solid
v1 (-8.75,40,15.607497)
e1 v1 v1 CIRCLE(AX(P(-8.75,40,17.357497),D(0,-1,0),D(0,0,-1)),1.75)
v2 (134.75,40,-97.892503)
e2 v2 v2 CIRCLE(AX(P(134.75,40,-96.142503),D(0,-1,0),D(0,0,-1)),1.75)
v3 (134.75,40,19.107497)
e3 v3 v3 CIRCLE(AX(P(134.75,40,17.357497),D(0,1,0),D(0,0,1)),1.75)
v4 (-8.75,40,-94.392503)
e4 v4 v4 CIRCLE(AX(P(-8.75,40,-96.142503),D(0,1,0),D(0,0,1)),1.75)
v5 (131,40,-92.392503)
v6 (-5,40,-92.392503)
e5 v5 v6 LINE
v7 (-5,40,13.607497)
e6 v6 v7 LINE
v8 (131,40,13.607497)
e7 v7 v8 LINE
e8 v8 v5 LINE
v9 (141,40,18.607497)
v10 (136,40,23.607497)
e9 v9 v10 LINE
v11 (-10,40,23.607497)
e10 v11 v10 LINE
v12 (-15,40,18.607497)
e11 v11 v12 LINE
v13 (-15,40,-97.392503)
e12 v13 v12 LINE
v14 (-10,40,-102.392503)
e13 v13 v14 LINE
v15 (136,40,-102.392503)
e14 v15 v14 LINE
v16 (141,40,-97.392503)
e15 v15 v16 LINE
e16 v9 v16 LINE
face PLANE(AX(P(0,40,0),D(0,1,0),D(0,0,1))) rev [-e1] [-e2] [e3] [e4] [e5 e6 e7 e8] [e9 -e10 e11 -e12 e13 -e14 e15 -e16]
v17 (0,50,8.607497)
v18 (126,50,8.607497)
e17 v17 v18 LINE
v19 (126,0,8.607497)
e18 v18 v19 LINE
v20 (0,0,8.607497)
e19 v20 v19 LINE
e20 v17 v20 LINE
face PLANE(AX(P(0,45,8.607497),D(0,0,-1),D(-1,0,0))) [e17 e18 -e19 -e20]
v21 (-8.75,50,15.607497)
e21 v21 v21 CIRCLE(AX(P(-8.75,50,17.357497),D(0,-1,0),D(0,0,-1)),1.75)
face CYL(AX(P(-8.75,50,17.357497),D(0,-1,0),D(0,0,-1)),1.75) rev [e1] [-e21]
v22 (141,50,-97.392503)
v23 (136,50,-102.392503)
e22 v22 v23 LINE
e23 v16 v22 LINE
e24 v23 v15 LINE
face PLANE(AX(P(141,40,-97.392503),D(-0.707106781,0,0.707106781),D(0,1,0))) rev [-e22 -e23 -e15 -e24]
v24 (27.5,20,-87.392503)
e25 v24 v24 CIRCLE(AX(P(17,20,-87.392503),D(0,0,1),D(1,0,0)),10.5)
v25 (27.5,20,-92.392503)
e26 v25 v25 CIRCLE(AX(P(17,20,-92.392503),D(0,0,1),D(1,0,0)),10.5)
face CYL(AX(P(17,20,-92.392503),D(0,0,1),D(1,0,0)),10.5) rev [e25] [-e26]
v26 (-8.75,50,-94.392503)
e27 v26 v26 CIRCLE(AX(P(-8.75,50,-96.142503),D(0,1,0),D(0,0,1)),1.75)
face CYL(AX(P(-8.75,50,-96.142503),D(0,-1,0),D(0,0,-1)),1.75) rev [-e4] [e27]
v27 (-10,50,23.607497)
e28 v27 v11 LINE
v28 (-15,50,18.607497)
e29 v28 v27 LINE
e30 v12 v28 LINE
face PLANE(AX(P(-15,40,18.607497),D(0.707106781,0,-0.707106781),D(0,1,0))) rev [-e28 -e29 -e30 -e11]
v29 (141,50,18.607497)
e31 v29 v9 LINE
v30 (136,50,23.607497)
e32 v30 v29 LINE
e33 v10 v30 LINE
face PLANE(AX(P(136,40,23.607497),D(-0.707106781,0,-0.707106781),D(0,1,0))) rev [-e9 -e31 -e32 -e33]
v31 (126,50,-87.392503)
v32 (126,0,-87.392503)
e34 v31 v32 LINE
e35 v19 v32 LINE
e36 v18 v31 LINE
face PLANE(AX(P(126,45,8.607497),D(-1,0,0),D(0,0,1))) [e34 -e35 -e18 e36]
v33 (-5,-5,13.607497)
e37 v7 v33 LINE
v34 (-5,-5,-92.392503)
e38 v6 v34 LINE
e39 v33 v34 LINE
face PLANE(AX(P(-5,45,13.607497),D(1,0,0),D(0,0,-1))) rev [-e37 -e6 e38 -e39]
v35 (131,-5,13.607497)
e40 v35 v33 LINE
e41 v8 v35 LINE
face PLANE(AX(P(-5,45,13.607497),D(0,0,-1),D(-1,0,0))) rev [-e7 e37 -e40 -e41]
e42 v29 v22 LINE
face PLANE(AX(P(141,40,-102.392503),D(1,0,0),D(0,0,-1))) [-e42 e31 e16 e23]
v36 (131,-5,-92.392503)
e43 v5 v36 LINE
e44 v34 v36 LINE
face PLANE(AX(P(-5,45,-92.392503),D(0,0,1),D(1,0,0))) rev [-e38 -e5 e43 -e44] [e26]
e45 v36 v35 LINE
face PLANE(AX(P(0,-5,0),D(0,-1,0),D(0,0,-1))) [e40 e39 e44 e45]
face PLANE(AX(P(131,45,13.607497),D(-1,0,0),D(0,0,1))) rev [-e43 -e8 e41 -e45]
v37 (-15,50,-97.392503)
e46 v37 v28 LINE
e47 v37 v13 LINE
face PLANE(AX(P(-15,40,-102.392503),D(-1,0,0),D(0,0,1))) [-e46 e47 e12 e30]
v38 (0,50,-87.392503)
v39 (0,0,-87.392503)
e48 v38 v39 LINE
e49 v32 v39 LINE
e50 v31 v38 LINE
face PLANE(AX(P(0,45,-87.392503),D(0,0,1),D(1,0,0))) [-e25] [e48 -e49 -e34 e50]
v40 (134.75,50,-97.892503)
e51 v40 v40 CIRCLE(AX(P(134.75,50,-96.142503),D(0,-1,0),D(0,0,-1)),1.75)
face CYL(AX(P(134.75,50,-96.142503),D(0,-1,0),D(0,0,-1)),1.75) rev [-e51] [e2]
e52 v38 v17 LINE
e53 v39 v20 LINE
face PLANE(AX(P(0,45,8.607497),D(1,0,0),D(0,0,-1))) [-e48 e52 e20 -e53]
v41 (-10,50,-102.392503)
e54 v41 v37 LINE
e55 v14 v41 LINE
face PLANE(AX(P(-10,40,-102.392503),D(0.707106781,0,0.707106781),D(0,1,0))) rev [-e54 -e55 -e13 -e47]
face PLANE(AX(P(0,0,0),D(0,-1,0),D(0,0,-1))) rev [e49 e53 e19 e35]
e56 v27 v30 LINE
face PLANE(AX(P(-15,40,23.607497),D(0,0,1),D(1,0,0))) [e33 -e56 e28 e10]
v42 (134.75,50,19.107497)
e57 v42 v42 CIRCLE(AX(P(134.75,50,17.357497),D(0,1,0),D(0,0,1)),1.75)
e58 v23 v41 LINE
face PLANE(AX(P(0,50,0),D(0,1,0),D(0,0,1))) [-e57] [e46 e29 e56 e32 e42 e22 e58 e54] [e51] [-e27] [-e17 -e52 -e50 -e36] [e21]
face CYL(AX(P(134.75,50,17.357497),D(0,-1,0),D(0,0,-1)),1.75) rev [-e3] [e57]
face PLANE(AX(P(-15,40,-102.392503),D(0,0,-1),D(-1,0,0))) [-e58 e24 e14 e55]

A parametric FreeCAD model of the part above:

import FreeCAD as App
import Part
import Sketcher
Q = App.Units.Quantity


def edges_at(feature, points):
    """Names of the edges that pass closest to the given points."""
    edges = feature.Shape.Edges
    near = lambda p: min(range(len(edges)), key=lambda i: edges[i].distToShape(Part.Vertex(*p))[0])
    return sorted({f"Edge{near(p) + 1}" for p in points})

doc = App.newDocument("Part")
body = doc.addObject("PartDesign::Body", "Body")

# Sketch on XZ plane
sketch1 = body.newObject("Sketcher::SketchObject", "Sketch")
sketch1.AttachmentSupport = (doc.getObject("XZ_Plane"), [""])
sketch1.MapMode = "FlatFace"
sketch1.addGeometry(Part.LineSegment(App.Vector(-5, -92, 0), App.Vector(-5, 14, 0)), False)
sketch1.addGeometry(Part.LineSegment(App.Vector(-5, 14, 0), App.Vector(131, 14, 0)), False)
sketch1.addGeometry(Part.LineSegment(App.Vector(131, 14, 0), App.Vector(131, -92, 0)), False)
sketch1.addGeometry(Part.LineSegment(App.Vector(131, -92, 0), App.Vector(-5, -92, 0)), False)
sketch1.addGeometry(Part.LineSegment(App.Vector(126, 9, 0), App.Vector(0, 9, 0)), False)
sketch1.addGeometry(Part.LineSegment(App.Vector(0, 9, 0), App.Vector(0, -87, 0)), False)
sketch1.addGeometry(Part.LineSegment(App.Vector(0, -87, 0), App.Vector(126, -87, 0)), False)
sketch1.addGeometry(Part.LineSegment(App.Vector(126, -87, 0), App.Vector(126, 9, 0)), False)
sketch1.addConstraint(Sketcher.Constraint("Coincident", 0, 2, 1, 1))
sketch1.addConstraint(Sketcher.Constraint("Coincident", 1, 2, 2, 1))
sketch1.addConstraint(Sketcher.Constraint("Coincident", 2, 2, 3, 1))
sketch1.addConstraint(Sketcher.Constraint("Coincident", 3, 2, 0, 1))
sketch1.addConstraint(Sketcher.Constraint("Coincident", 4, 2, 5, 1))
sketch1.addConstraint(Sketcher.Constraint("Coincident", 5, 2, 6, 1))
sketch1.addConstraint(Sketcher.Constraint("Coincident", 6, 2, 7, 1))
sketch1.addConstraint(Sketcher.Constraint("Coincident", 7, 2, 4, 1))
sketch1.addConstraint(Sketcher.Constraint("Vertical", 0))
sketch1.addConstraint(Sketcher.Constraint("Horizontal", 1))
sketch1.addConstraint(Sketcher.Constraint("Vertical", 2))
sketch1.addConstraint(Sketcher.Constraint("Horizontal", 3))
sketch1.addConstraint(Sketcher.Constraint("Horizontal", 4))
sketch1.addConstraint(Sketcher.Constraint("Vertical", 5))
sketch1.addConstraint(Sketcher.Constraint("Horizontal", 6))
sketch1.addConstraint(Sketcher.Constraint("Vertical", 7))
sketch1.addConstraint(Sketcher.Constraint("PointOnObject", 4, 2, -2))
sketch1.addConstraint(Sketcher.Constraint("DistanceX", 1, 1, 1, 2, Q("136 mm")))
sketch1.addConstraint(Sketcher.Constraint("DistanceX", 4, 2, 4, 1, Q("126 mm")))
sketch1.addConstraint(Sketcher.Constraint("DistanceY", 0, 1, 0, 2, Q("106 mm")))
sketch1.addConstraint(Sketcher.Constraint("DistanceY", 5, 2, 5, 1, Q("96 mm")))
sketch1.addConstraint(Sketcher.Constraint("DistanceX", 0, 2, -1, 1, Q("5 mm")))
sketch1.addConstraint(Sketcher.Constraint("DistanceY", 4, 2, 0, 2, Q("5 mm")))
sketch1.addConstraint(Sketcher.Constraint("DistanceY", -1, 1, 0, 2, Q("13.607497 mm")))
pad1 = body.newObject("PartDesign::Pad", "Pad")
pad1.Profile = sketch1
pad1.Length = 45
pad1.Reversed = True

# Sketch on XZ plane
sketch2 = body.newObject("Sketcher::SketchObject", "Sketch001")
sketch2.AttachmentSupport = (doc.getObject("XZ_Plane"), [""])
sketch2.MapMode = "FlatFace"
sketch2.addGeometry(Part.LineSegment(App.Vector(-5, 14, 0), App.Vector(-5, -92, 0)), False)
sketch2.addGeometry(Part.LineSegment(App.Vector(-5, -92, 0), App.Vector(131, -92, 0)), False)
sketch2.addGeometry(Part.LineSegment(App.Vector(131, -92, 0), App.Vector(131, 14, 0)), False)
sketch2.addGeometry(Part.LineSegment(App.Vector(131, 14, 0), App.Vector(-5, 14, 0)), False)
sketch2.addConstraint(Sketcher.Constraint("Coincident", 0, 2, 1, 1))
sketch2.addConstraint(Sketcher.Constraint("Coincident", 1, 2, 2, 1))
sketch2.addConstraint(Sketcher.Constraint("Coincident", 2, 2, 3, 1))
sketch2.addConstraint(Sketcher.Constraint("Coincident", 3, 2, 0, 1))
sketch2.addConstraint(Sketcher.Constraint("Vertical", 0))
sketch2.addConstraint(Sketcher.Constraint("Horizontal", 1))
sketch2.addConstraint(Sketcher.Constraint("Vertical", 2))
sketch2.addConstraint(Sketcher.Constraint("Horizontal", 3))
sketch2.addConstraint(Sketcher.Constraint("DistanceX", 1, 1, 1, 2, Q("136 mm")))
sketch2.addConstraint(Sketcher.Constraint("DistanceY", 0, 2, 0, 1, Q("106 mm")))
sketch2.addConstraint(Sketcher.Constraint("DistanceX", 0, 2, -1, 1, Q("5 mm")))
sketch2.addConstraint(Sketcher.Constraint("DistanceY", 0, 2, -1, 1, Q("92.392503 mm")))
pad2 = body.newObject("PartDesign::Pad", "Pad001")
pad2.Profile = sketch2
pad2.Length = 5

# Sketch on XY plane
sketch3 = body.newObject("Sketcher::SketchObject", "Sketch002")
sketch3.AttachmentSupport = (doc.getObject("XY_Plane"), [""])
sketch3.MapMode = "FlatFace"
sketch3.AttachmentOffset = App.Placement(App.Vector(0, 0, -87.392503), App.Rotation())
sketch3.addGeometry(Part.Circle(App.Vector(17, 20, 0), App.Vector(0, 0, 1), 10), False)
sketch3.addConstraint(Sketcher.Constraint("Diameter", 0, Q("21 mm")))
sketch3.addConstraint(Sketcher.Constraint("DistanceX", -1, 1, 0, 3, Q("17 mm")))
sketch3.addConstraint(Sketcher.Constraint("DistanceY", -1, 1, 0, 3, Q("20 mm")))
pocket1 = body.newObject("PartDesign::Pocket", "Pocket")
pocket1.Profile = sketch3
pocket1.Length = 5

# Sketch on XZ plane
sketch4 = body.newObject("Sketcher::SketchObject", "Sketch003")
sketch4.AttachmentSupport = (doc.getObject("XZ_Plane"), [""])
sketch4.MapMode = "FlatFace"
sketch4.AttachmentOffset = App.Placement(App.Vector(0, 0, -45), App.Rotation())
sketch4.addGeometry(Part.LineSegment(App.Vector(-15, -102, 0), App.Vector(-15, 24, 0)), False)
sketch4.addGeometry(Part.LineSegment(App.Vector(-15, 24, 0), App.Vector(141, 24, 0)), False)
sketch4.addGeometry(Part.LineSegment(App.Vector(141, 24, 0), App.Vector(141, -102, 0)), False)
sketch4.addGeometry(Part.LineSegment(App.Vector(141, -102, 0), App.Vector(-15, -102, 0)), False)
sketch4.addGeometry(Part.LineSegment(App.Vector(131, 14, 0), App.Vector(-5, 14, 0)), False)
sketch4.addGeometry(Part.LineSegment(App.Vector(-5, 14, 0), App.Vector(-5, -92, 0)), False)
sketch4.addGeometry(Part.LineSegment(App.Vector(-5, -92, 0), App.Vector(131, -92, 0)), False)
sketch4.addGeometry(Part.LineSegment(App.Vector(131, -92, 0), App.Vector(131, 14, 0)), False)
sketch4.addConstraint(Sketcher.Constraint("Coincident", 0, 2, 1, 1))
sketch4.addConstraint(Sketcher.Constraint("Coincident", 1, 2, 2, 1))
sketch4.addConstraint(Sketcher.Constraint("Coincident", 2, 2, 3, 1))
sketch4.addConstraint(Sketcher.Constraint("Coincident", 3, 2, 0, 1))
sketch4.addConstraint(Sketcher.Constraint("Coincident", 4, 2, 5, 1))
sketch4.addConstraint(Sketcher.Constraint("Coincident", 5, 2, 6, 1))
sketch4.addConstraint(Sketcher.Constraint("Coincident", 6, 2, 7, 1))
sketch4.addConstraint(Sketcher.Constraint("Coincident", 7, 2, 4, 1))
sketch4.addConstraint(Sketcher.Constraint("Vertical", 0))
sketch4.addConstraint(Sketcher.Constraint("Horizontal", 1))
sketch4.addConstraint(Sketcher.Constraint("Vertical", 2))
sketch4.addConstraint(Sketcher.Constraint("Horizontal", 3))
sketch4.addConstraint(Sketcher.Constraint("Horizontal", 4))
sketch4.addConstraint(Sketcher.Constraint("Vertical", 5))
sketch4.addConstraint(Sketcher.Constraint("Horizontal", 6))
sketch4.addConstraint(Sketcher.Constraint("Vertical", 7))
sketch4.addConstraint(Sketcher.Constraint("DistanceX", 1, 1, 1, 2, Q("156 mm")))
sketch4.addConstraint(Sketcher.Constraint("DistanceX", 4, 2, 4, 1, Q("136 mm")))
sketch4.addConstraint(Sketcher.Constraint("DistanceY", 0, 1, 0, 2, Q("126 mm")))
sketch4.addConstraint(Sketcher.Constraint("DistanceY", 5, 2, 5, 1, Q("106 mm")))
sketch4.addConstraint(Sketcher.Constraint("DistanceX", 0, 2, -1, 1, Q("15 mm")))
sketch4.addConstraint(Sketcher.Constraint("DistanceX", 4, 2, -1, 1, Q("5 mm")))
sketch4.addConstraint(Sketcher.Constraint("DistanceY", 4, 2, 0, 2, Q("10 mm")))
sketch4.addConstraint(Sketcher.Constraint("DistanceY", -1, 1, 0, 2, Q("23.607497 mm")))
pad3 = body.newObject("PartDesign::Pad", "Pad002")
pad3.Profile = sketch4
pad3.Type = "TwoLengths"
pad3.Length = 5
pad3.Length2 = 5
pad3.Reversed = True

# Sketch on XZ plane
sketch5 = body.newObject("Sketcher::SketchObject", "Sketch004")
sketch5.AttachmentSupport = (doc.getObject("XZ_Plane"), [""])
sketch5.MapMode = "FlatFace"
sketch5.AttachmentOffset = App.Placement(App.Vector(0, 0, -45), App.Rotation())
sketch5.addGeometry(Part.LineSegment(App.Vector(-5, -92, 0), App.Vector(-5, 14, 0)), False)
sketch5.addGeometry(Part.LineSegment(App.Vector(-5, 14, 0), App.Vector(131, 14, 0)), False)
sketch5.addGeometry(Part.LineSegment(App.Vector(131, 14, 0), App.Vector(131, -92, 0)), False)
sketch5.addGeometry(Part.LineSegment(App.Vector(131, -92, 0), App.Vector(-5, -92, 0)), False)
sketch5.addGeometry(Part.LineSegment(App.Vector(126, 9, 0), App.Vector(0, 9, 0)), False)
sketch5.addGeometry(Part.LineSegment(App.Vector(0, 9, 0), App.Vector(0, -87, 0)), False)
sketch5.addGeometry(Part.LineSegment(App.Vector(0, -87, 0), App.Vector(126, -87, 0)), False)
sketch5.addGeometry(Part.LineSegment(App.Vector(126, -87, 0), App.Vector(126, 9, 0)), False)
sketch5.addConstraint(Sketcher.Constraint("Coincident", 0, 2, 1, 1))
sketch5.addConstraint(Sketcher.Constraint("Coincident", 1, 2, 2, 1))
sketch5.addConstraint(Sketcher.Constraint("Coincident", 2, 2, 3, 1))
sketch5.addConstraint(Sketcher.Constraint("Coincident", 3, 2, 0, 1))
sketch5.addConstraint(Sketcher.Constraint("Coincident", 4, 2, 5, 1))
sketch5.addConstraint(Sketcher.Constraint("Coincident", 5, 2, 6, 1))
sketch5.addConstraint(Sketcher.Constraint("Coincident", 6, 2, 7, 1))
sketch5.addConstraint(Sketcher.Constraint("Coincident", 7, 2, 4, 1))
sketch5.addConstraint(Sketcher.Constraint("Vertical", 0))
sketch5.addConstraint(Sketcher.Constraint("Horizontal", 1))
sketch5.addConstraint(Sketcher.Constraint("Vertical", 2))
sketch5.addConstraint(Sketcher.Constraint("Horizontal", 3))
sketch5.addConstraint(Sketcher.Constraint("Horizontal", 4))
sketch5.addConstraint(Sketcher.Constraint("Vertical", 5))
sketch5.addConstraint(Sketcher.Constraint("Horizontal", 6))
sketch5.addConstraint(Sketcher.Constraint("Vertical", 7))
sketch5.addConstraint(Sketcher.Constraint("PointOnObject", 4, 2, -2))
sketch5.addConstraint(Sketcher.Constraint("DistanceX", 1, 1, 1, 2, Q("136 mm")))
sketch5.addConstraint(Sketcher.Constraint("DistanceX", 4, 2, 4, 1, Q("126 mm")))
sketch5.addConstraint(Sketcher.Constraint("DistanceY", 0, 1, 0, 2, Q("106 mm")))
sketch5.addConstraint(Sketcher.Constraint("DistanceY", 5, 2, 5, 1, Q("96 mm")))
sketch5.addConstraint(Sketcher.Constraint("DistanceX", 0, 2, -1, 1, Q("5 mm")))
sketch5.addConstraint(Sketcher.Constraint("DistanceY", 4, 2, 0, 2, Q("5 mm")))
sketch5.addConstraint(Sketcher.Constraint("DistanceY", -1, 1, 0, 2, Q("13.607497 mm")))
pad4 = body.newObject("PartDesign::Pad", "Pad003")
pad4.Profile = sketch5
pad4.Length = 5
pad4.Reversed = True
doc.recompute()

chamfer = body.newObject("PartDesign::Chamfer", "Chamfer")
chamfer.Base = (pad4, edges_at(pad4, [
    (-15, 45, 23.607),
    (-15, 45, -102.393),
    (141, 45, -102.393),
    (141, 45, 23.607),
]))
chamfer.Size = 5

# Sketch on XZ plane
sketch6 = body.newObject("Sketcher::SketchObject", "Sketch005")
sketch6.AttachmentSupport = (doc.getObject("XZ_Plane"), [""])
sketch6.MapMode = "FlatFace"
sketch6.AttachmentOffset = App.Placement(App.Vector(0, 0, -40), App.Rotation())
sketch6.addGeometry(Part.Circle(App.Vector(-8.8, 17.4, 0), App.Vector(0, 0, 1), 1.8), False)
sketch6.addGeometry(Part.Circle(App.Vector(-8.8, -96.1, 0), App.Vector(0, 0, 1), 1.8), False)
sketch6.addGeometry(Part.Circle(App.Vector(134.8, -96.1, 0), App.Vector(0, 0, 1), 1.8), False)
sketch6.addGeometry(Part.Circle(App.Vector(134.8, 17.4, 0), App.Vector(0, 0, 1), 1.8), False)
sketch6.addConstraint(Sketcher.Constraint("Equal", 0, 1))
sketch6.addConstraint(Sketcher.Constraint("Equal", 1, 2))
sketch6.addConstraint(Sketcher.Constraint("Equal", 2, 3))
sketch6.addConstraint(Sketcher.Constraint("Horizontal", 1, 3, 2, 3))
sketch6.addConstraint(Sketcher.Constraint("Horizontal", 0, 3, 3, 3))
sketch6.addConstraint(Sketcher.Constraint("Vertical", 0, 3, 1, 3))
sketch6.addConstraint(Sketcher.Constraint("Vertical", 2, 3, 3, 3))
sketch6.addConstraint(Sketcher.Constraint("Diameter", 0, Q("3.5 mm")))
sketch6.addConstraint(Sketcher.Constraint("DistanceY", 1, 3, 0, 3, Q("113.5 mm")))
sketch6.addConstraint(Sketcher.Constraint("DistanceX", 1, 3, 2, 3, Q("143.5 mm")))
sketch6.addConstraint(Sketcher.Constraint("DistanceX", 0, 3, -1, 1, Q("8.75 mm")))
sketch6.addConstraint(Sketcher.Constraint("DistanceY", -1, 1, 0, 3, Q("17.357497 mm")))
pocket2 = body.newObject("PartDesign::Pocket", "Pocket001")
pocket2.Profile = sketch6
pocket2.Type = "ThroughAll"

doc.recompute()
